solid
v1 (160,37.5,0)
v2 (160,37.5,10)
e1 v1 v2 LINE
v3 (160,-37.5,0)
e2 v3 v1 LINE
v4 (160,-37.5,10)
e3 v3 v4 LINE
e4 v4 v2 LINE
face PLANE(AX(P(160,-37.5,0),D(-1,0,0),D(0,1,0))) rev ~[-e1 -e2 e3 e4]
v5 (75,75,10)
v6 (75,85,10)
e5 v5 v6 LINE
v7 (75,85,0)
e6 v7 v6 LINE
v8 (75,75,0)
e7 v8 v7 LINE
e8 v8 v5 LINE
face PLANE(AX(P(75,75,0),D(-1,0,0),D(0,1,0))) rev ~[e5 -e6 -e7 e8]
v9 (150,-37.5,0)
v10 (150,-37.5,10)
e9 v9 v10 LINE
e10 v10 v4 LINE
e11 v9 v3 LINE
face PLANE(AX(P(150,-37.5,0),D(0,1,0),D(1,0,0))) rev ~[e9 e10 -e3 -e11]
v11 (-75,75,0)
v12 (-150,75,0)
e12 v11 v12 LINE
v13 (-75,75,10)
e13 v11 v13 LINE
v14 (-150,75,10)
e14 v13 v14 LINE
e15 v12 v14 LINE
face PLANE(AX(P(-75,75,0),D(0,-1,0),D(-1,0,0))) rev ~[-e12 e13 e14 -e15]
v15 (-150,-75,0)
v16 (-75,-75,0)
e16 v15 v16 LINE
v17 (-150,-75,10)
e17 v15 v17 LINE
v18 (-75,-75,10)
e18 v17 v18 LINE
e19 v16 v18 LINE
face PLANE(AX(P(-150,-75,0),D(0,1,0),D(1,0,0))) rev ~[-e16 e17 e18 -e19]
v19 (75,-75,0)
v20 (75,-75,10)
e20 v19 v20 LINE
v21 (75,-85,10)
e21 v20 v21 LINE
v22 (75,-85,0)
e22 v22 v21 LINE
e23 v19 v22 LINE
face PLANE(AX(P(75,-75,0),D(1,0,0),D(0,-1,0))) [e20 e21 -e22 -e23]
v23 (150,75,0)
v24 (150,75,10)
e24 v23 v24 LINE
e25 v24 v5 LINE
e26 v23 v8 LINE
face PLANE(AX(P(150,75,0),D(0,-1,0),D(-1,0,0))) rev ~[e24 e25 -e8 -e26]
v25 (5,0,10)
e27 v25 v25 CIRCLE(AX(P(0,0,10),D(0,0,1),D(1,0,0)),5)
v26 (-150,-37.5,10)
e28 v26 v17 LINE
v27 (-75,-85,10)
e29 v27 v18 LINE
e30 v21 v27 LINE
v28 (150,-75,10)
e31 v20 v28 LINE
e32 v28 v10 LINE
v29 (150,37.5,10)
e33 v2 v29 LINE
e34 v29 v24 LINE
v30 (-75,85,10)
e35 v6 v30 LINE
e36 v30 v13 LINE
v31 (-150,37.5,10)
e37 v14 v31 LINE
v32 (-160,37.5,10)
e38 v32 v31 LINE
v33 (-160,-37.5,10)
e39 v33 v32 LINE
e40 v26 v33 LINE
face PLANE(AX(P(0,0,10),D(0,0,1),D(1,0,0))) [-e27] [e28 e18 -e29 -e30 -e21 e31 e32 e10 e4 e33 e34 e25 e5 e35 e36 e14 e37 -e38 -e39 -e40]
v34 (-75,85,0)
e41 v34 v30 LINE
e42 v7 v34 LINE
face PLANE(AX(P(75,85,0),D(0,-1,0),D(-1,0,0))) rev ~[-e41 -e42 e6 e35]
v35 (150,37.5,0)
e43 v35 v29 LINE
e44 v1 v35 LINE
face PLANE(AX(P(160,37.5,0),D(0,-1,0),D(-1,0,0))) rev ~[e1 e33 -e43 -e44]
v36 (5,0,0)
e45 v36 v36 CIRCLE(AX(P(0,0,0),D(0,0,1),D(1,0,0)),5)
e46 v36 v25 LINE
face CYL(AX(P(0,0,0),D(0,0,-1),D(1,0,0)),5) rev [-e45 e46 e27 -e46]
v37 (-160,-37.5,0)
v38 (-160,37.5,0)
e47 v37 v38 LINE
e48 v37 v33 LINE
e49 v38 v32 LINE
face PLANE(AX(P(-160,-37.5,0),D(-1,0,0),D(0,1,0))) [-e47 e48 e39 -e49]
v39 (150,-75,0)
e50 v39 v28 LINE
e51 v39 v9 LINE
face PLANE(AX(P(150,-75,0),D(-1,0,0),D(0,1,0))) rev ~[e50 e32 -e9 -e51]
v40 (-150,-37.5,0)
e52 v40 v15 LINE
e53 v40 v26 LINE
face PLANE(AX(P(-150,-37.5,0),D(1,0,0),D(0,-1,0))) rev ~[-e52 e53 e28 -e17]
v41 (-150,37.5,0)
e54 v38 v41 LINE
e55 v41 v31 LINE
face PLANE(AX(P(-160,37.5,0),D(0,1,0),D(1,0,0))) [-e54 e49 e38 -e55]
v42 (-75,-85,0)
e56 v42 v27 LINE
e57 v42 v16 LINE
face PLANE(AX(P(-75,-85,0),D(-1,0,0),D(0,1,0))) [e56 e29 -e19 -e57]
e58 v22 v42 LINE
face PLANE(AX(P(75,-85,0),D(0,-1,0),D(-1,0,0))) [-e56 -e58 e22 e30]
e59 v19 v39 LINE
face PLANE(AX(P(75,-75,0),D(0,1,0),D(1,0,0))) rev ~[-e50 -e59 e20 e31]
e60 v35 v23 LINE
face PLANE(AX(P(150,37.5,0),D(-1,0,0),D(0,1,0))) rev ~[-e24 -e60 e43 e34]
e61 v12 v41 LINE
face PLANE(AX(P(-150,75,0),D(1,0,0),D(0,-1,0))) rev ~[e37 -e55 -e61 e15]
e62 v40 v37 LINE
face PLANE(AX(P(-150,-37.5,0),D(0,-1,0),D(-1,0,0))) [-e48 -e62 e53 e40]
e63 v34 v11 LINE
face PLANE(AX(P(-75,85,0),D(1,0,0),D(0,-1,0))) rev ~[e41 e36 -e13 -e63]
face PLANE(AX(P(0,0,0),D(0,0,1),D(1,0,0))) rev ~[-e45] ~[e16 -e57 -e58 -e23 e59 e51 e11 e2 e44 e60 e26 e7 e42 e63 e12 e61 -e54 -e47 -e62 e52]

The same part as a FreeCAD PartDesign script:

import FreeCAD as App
import Part
import Sketcher

doc = App.newDocument("Part")
params = doc.addObject("Spreadsheet::Sheet", "Params")
for row, (alias, value) in enumerate([
    ("sketch1_diameter", "10 mm"),
    ("sketch1_width", "10 mm"),
    ("sketch1_width2", "75 mm"),
    ("sketch1_width3", "150 mm"),
    ("pad1_length", "10 mm"),
], start=1):
    params.set(f"A{row}", alias)
    params.set(f"B{row}", "=" + value)
    params.setAlias(f"B{row}", alias)

body = doc.addObject("PartDesign::Body", "Body")

sketch1 = body.newObject("Sketcher::SketchObject", "Sketch")
sketch1.AttachmentSupport = (doc.getObject("XY_Plane"), [""])
sketch1.MapMode = "FlatFace"
sketch1.addGeometry(Part.LineSegment(App.Vector(-160, -38, 0), App.Vector(-150, -38, 0)), False)
sketch1.addGeometry(Part.LineSegment(App.Vector(-150, -38, 0), App.Vector(-150, -75, 0)), False)
sketch1.addGeometry(Part.LineSegment(App.Vector(-150, -75, 0), App.Vector(-75, -75, 0)), False)
sketch1.addGeometry(Part.LineSegment(App.Vector(-75, -75, 0), App.Vector(-75, -85, 0)), False)
sketch1.addGeometry(Part.LineSegment(App.Vector(-75, -85, 0), App.Vector(75, -85, 0)), False)
sketch1.addGeometry(Part.LineSegment(App.Vector(75, -85, 0), App.Vector(75, -75, 0)), False)
sketch1.addGeometry(Part.LineSegment(App.Vector(75, -75, 0), App.Vector(150, -75, 0)), False)
sketch1.addGeometry(Part.LineSegment(App.Vector(150, -75, 0), App.Vector(150, -38, 0)), False)
sketch1.addGeometry(Part.LineSegment(App.Vector(150, -38, 0), App.Vector(160, -38, 0)), False)
sketch1.addGeometry(Part.LineSegment(App.Vector(160, -38, 0), App.Vector(160, 38, 0)), False)
sketch1.addGeometry(Part.LineSegment(App.Vector(160, 38, 0), App.Vector(150, 38, 0)), False)
sketch1.addGeometry(Part.LineSegment(App.Vector(150, 38, 0), App.Vector(150, 75, 0)), False)
sketch1.addGeometry(Part.LineSegment(App.Vector(150, 75, 0), App.Vector(75, 75, 0)), False)
sketch1.addGeometry(Part.LineSegment(App.Vector(75, 75, 0), App.Vector(75, 85, 0)), False)
sketch1.addGeometry(Part.LineSegment(App.Vector(75, 85, 0), App.Vector(-75, 85, 0)), False)
sketch1.addGeometry(Part.LineSegment(App.Vector(-75, 85, 0), App.Vector(-75, 75, 0)), False)
sketch1.addGeometry(Part.LineSegment(App.Vector(-75, 75, 0), App.Vector(-150, 75, 0)), False)
sketch1.addGeometry(Part.LineSegment(App.Vector(-150, 75, 0), App.Vector(-150, 38, 0)), False)
sketch1.addGeometry(Part.LineSegment(App.Vector(-150, 38, 0), App.Vector(-160, 38, 0)), False)
sketch1.addGeometry(Part.LineSegment(App.Vector(-160, 38, 0), App.Vector(-160, -38, 0)), False)
sketch1.addGeometry(Part.Circle(App.Vector(0, 0, 0), App.Vector(0, 0, 1), 5), False)
sketch1.addConstraint(Sketcher.Constraint("Coincident", 0, 2, 1, 1))
sketch1.addConstraint(Sketcher.Constraint("Coincident", 1, 2, 2, 1))
sketch1.addConstraint(Sketcher.Constraint("Coincident", 2, 2, 3, 1))
sketch1.addConstraint(Sketcher.Constraint("Coincident", 3, 2, 4, 1))
sketch1.addConstraint(Sketcher.Constraint("Coincident", 4, 2, 5, 1))
sketch1.addConstraint(Sketcher.Constraint("Coincident", 5, 2, 6, 1))
sketch1.addConstraint(Sketcher.Constraint("Coincident", 6, 2, 7, 1))
sketch1.addConstraint(Sketcher.Constraint("Coincident", 7, 2, 8, 1))
sketch1.addConstraint(Sketcher.Constraint("Coincident", 8, 2, 9, 1))
sketch1.addConstraint(Sketcher.Constraint("Coincident", 9, 2, 10, 1))
sketch1.addConstraint(Sketcher.Constraint("Coincident", 10, 2, 11, 1))
sketch1.addConstraint(Sketcher.Constraint("Coincident", 11, 2, 12, 1))
sketch1.addConstraint(Sketcher.Constraint("Coincident", 12, 2, 13, 1))
sketch1.addConstraint(Sketcher.Constraint("Coincident", 13, 2, 14, 1))
sketch1.addConstraint(Sketcher.Constraint("Coincident", 14, 2, 15, 1))
sketch1.addConstraint(Sketcher.Constraint("Coincident", 15, 2, 16, 1))
sketch1.addConstraint(Sketcher.Constraint("Coincident", 16, 2, 17, 1))
sketch1.addConstraint(Sketcher.Constraint("Coincident", 17, 2, 18, 1))
sketch1.addConstraint(Sketcher.Constraint("Coincident", 18, 2, 19, 1))
sketch1.addConstraint(Sketcher.Constraint("Coincident", 19, 2, 0, 1))
sketch1.addConstraint(Sketcher.Constraint("Horizontal", 0))
sketch1.addConstraint(Sketcher.Constraint("Vertical", 1))
sketch1.addConstraint(Sketcher.Constraint("Horizontal", 2))
sketch1.addConstraint(Sketcher.Constraint("Vertical", 3))
sketch1.addConstraint(Sketcher.Constraint("Horizontal", 4))
sketch1.addConstraint(Sketcher.Constraint("Vertical", 5))
sketch1.addConstraint(Sketcher.Constraint("Horizontal", 6))
sketch1.addConstraint(Sketcher.Constraint("Vertical", 7))
sketch1.addConstraint(Sketcher.Constraint("Horizontal", 8))
sketch1.addConstraint(Sketcher.Constraint("Vertical", 9))
sketch1.addConstraint(Sketcher.Constraint("Horizontal", 10))
sketch1.addConstraint(Sketcher.Constraint("Vertical", 11))
sketch1.addConstraint(Sketcher.Constraint("Horizontal", 12))
sketch1.addConstraint(Sketcher.Constraint("Vertical", 13))
sketch1.addConstraint(Sketcher.Constraint("Horizontal", 14))
sketch1.addConstraint(Sketcher.Constraint("Vertical", 15))
sketch1.addConstraint(Sketcher.Constraint("Horizontal", 16))
sketch1.addConstraint(Sketcher.Constraint("Vertical", 17))
sketch1.addConstraint(Sketcher.Constraint("Horizontal", 18))
sketch1.addConstraint(Sketcher.Constraint("Vertical", 19))
sketch1.addConstraint(Sketcher.Constraint("Coincident", 20, 3, -1, 1))
sketch1.addConstraint(Sketcher.Constraint("Symmetric", 0, 2, 10, 2, -1, 1))
sketch1.addConstraint(Sketcher.Constraint("Symmetric", 2, 2, 12, 2, -1, 1))
sketch1.addConstraint(Sketcher.Constraint("Symmetric", 4, 2, 14, 2, -1, 1))
sketch1.addConstraint(Sketcher.Constraint("Symmetric", 6, 2, 16, 2, -1, 1))
sketch1.addConstraint(Sketcher.Constraint("Symmetric", 8, 2, 18, 2, -1, 1))
sketch1.addConstraint(Sketcher.Constraint("Symmetric", 2, 2, 5, 2, -2))
sketch1.addConstraint(Sketcher.Constraint("Symmetric", 0, 2, 7, 2, -2))
sketch1.addConstraint(Sketcher.Constraint("Equal", 18, 3))
sketch1.addConstraint(Sketcher.Constraint("Equal", 16, 9))
sketch1.addConstraint(Sketcher.Constraint("Diameter", 20, 10.0))
sketch1.addConstraint(Sketcher.Constraint("DistanceX", 0, 1, 0, 2, 10.0))
sketch1.addConstraint(Sketcher.Constraint("DistanceX", 2, 1, 2, 2, 75.0))
sketch1.addConstraint(Sketcher.Constraint("DistanceX", 4, 1, 4, 2, 150.0))
sketch1.addConstraint(Sketcher.Constraint("DistanceY", 1, 2, -1, 1, 75.0))
sketch1.setExpression("Constraints[50]", "Params.sketch1_diameter")
sketch1.setExpression("Constraints[51]", "Params.sketch1_width")
sketch1.setExpression("Constraints[52]", "Params.sketch1_width2")
sketch1.setExpression("Constraints[53]", "Params.sketch1_width3")
pad1 = body.newObject("PartDesign::Pad", "Pad")
pad1.Profile = sketch1
pad1.setExpression("Length", "Params.pad1_length")

doc.recompute()
